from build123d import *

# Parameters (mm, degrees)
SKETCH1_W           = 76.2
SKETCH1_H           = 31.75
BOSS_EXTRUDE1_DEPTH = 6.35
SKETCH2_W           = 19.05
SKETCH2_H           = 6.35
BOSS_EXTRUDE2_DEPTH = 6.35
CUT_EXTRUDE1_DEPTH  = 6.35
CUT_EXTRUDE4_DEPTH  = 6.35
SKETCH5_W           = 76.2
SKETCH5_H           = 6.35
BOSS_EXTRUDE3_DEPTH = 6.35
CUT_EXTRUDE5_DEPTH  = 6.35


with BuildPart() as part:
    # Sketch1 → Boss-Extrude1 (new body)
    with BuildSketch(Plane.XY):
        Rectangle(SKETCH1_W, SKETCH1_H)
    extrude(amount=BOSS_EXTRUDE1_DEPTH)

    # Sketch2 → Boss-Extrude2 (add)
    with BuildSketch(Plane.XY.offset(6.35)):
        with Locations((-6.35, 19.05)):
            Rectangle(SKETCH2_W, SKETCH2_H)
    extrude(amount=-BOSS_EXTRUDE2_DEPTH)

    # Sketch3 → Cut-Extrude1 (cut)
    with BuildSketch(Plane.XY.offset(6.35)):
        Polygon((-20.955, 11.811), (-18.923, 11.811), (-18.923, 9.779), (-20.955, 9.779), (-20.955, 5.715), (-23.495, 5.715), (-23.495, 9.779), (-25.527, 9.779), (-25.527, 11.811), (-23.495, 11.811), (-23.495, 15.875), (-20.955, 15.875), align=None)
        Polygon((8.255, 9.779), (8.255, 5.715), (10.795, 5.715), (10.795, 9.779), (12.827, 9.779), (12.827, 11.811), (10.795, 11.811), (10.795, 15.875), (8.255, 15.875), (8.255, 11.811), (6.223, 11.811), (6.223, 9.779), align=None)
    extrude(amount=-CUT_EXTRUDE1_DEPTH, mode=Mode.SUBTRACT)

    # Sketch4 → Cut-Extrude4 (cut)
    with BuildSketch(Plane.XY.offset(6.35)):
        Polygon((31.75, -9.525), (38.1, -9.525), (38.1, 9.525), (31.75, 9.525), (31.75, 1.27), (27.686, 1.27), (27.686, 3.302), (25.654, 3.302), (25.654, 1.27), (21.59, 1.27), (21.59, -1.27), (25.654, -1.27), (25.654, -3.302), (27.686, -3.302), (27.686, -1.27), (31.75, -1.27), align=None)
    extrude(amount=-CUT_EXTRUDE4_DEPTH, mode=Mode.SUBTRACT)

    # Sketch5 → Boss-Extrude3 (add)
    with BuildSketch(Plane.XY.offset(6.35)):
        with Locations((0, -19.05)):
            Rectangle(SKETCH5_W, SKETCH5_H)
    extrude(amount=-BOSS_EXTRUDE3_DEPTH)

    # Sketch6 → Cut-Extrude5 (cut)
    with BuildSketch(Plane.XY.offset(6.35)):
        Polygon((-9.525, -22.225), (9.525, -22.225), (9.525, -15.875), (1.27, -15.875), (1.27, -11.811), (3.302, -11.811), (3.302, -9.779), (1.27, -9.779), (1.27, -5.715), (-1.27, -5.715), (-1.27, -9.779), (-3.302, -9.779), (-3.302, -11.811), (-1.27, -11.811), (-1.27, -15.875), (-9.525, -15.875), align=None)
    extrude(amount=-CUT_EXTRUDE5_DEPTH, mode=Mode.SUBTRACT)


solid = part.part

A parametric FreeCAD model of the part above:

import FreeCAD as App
import Part
import Sketcher

V = App.Vector
Q = App.Units.Quantity

doc = App.newDocument("Part")
body = doc.addObject("PartDesign::Body", "Body")

# Sketch on XY plane
sketch1 = body.newObject("Sketcher::SketchObject", "Sketch")
sketch1.AttachmentSupport = (doc.getObject("XY_Plane"), [""])
sketch1.MapMode = "FlatFace"
sketch1.addGeometry([
    Part.LineSegment(V(-38, 16, 0), V(-38, -16, 0)),
    Part.LineSegment(V(-38, -16, 0), V(38, -16, 0)),
    Part.LineSegment(V(38, -16, 0), V(38, 16, 0)),
    Part.LineSegment(V(38, 16, 0), V(-38, 16, 0)),
], False)
sketch1.addConstraint([
    Sketcher.Constraint("Coincident", 0, 2, 1, 1),
    Sketcher.Constraint("Coincident", 1, 2, 2, 1),
    Sketcher.Constraint("Coincident", 2, 2, 3, 1),
    Sketcher.Constraint("Coincident", 3, 2, 0, 1),
    Sketcher.Constraint("Vertical", 0),
    Sketcher.Constraint("Horizontal", 1),
    Sketcher.Constraint("Vertical", 2),
    Sketcher.Constraint("Horizontal", 3),
    Sketcher.Constraint("Symmetric", 0, 2, 2, 2, -1, 1),
    Sketcher.Constraint("DistanceX", 1, 1, 1, 2, Q("3 in")),
    Sketcher.Constraint("DistanceY", 0, 2, 0, 1, Q("1.25 in")),
])
pad1 = body.newObject("PartDesign::Pad", "Pad")
pad1.Profile = sketch1
pad1.Length = Q("0.25 in")

# Sketch on XY plane
sketch2 = body.newObject("Sketcher::SketchObject", "Sketch001")
sketch2.AttachmentSupport = (doc.getObject("XY_Plane"), [""])
sketch2.MapMode = "FlatFace"
sketch2.AttachmentOffset = App.Placement(V(0, 0, 0.25 * 25.4), App.Rotation())
sketch2.addGeometry([
    Part.LineSegment(V(-16, 22, 0), V(-16, 16, 0)),
    Part.LineSegment(V(-16, 16, 0), V(3, 16, 0)),
    Part.LineSegment(V(3, 16, 0), V(3, 22, 0)),
    Part.LineSegment(V(3, 22, 0), V(-16, 22, 0)),
], False)
sketch2.addConstraint([
    Sketcher.Constraint("Coincident", 0, 2, 1, 1),
    Sketcher.Constraint("Coincident", 1, 2, 2, 1),
    Sketcher.Constraint("Coincident", 2, 2, 3, 1),
    Sketcher.Constraint("Coincident", 3, 2, 0, 1),
    Sketcher.Constraint("Vertical", 0),
    Sketcher.Constraint("Horizontal", 1),
    Sketcher.Constraint("Vertical", 2),
    Sketcher.Constraint("Horizontal", 3),
    Sketcher.Constraint("DistanceX", 1, 1, 1, 2, Q("0.75 in")),
    Sketcher.Constraint("DistanceY", 0, 2, 0, 1, Q("0.25 in")),
    Sketcher.Constraint("DistanceX", 0, 2, -1, 1, Q("0.625 in")),
    Sketcher.Constraint("DistanceY", -1, 1, 0, 2, Q("0.625 in")),
])
pad2 = body.newObject("PartDesign::Pad", "Pad001")
pad2.Profile = sketch2
pad2.Length = Q("0.25 in")
pad2.Reversed = True

# Sketch on XY plane
sketch3 = body.newObject("Sketcher::SketchObject", "Sketch002")
sketch3.AttachmentSupport = (doc.getObject("XY_Plane"), [""])
sketch3.MapMode = "FlatFace"
sketch3.AttachmentOffset = App.Placement(V(0, 0, 0.25 * 25.4), App.Rotation())
sketch3.addGeometry([
    Part.LineSegment(V(-18.9, 11.8, 0), V(-21, 11.8, 0)),  # 0
    Part.LineSegment(V(-21, 11.8, 0), V(-21, 15.9, 0)),  # 1
    Part.LineSegment(V(-21, 15.9, 0), V(-23.5, 15.9, 0)),  # 2
    Part.LineSegment(V(-23.5, 15.9, 0), V(-23.5, 11.8, 0)),  # 3
    Part.LineSegment(V(-23.5, 11.8, 0), V(-25.5, 11.8, 0)),  # 4
    Part.LineSegment(V(-25.5, 11.8, 0), V(-25.5, 9.8, 0)),  # 5
    Part.LineSegment(V(-25.5, 9.8, 0), V(-23.5, 9.8, 0)),  # 6
    Part.LineSegment(V(-23.5, 9.8, 0), V(-23.5, 5.7, 0)),  # 7
    Part.LineSegment(V(-23.5, 5.7, 0), V(-21, 5.7, 0)),  # 8
    Part.LineSegment(V(-21, 5.7, 0), V(-21, 9.8, 0)),  # 9
    Part.LineSegment(V(-21, 9.8, 0), V(-18.9, 9.8, 0)),  # 10
    Part.LineSegment(V(-18.9, 9.8, 0), V(-18.9, 11.8, 0)),  # 11
    Part.LineSegment(V(8.3, 9.8, 0), V(8.3, 5.7, 0)),  # 12
    Part.LineSegment(V(8.3, 5.7, 0), V(10.8, 5.7, 0)),  # 13
    Part.LineSegment(V(10.8, 5.7, 0), V(10.8, 9.8, 0)),  # 14
    Part.LineSegment(V(10.8, 9.8, 0), V(12.8, 9.8, 0)),  # 15
    Part.LineSegment(V(12.8, 9.8, 0), V(12.8, 11.8, 0)),  # 16
    Part.LineSegment(V(12.8, 11.8, 0), V(10.8, 11.8, 0)),  # 17
    Part.LineSegment(V(10.8, 11.8, 0), V(10.8, 15.9, 0)),  # 18
    Part.LineSegment(V(10.8, 15.9, 0), V(8.3, 15.9, 0)),  # 19
    Part.LineSegment(V(8.3, 15.9, 0), V(8.3, 11.8, 0)),  # 20
    Part.LineSegment(V(8.3, 11.8, 0), V(6.2, 11.8, 0)),  # 21
    Part.LineSegment(V(6.2, 11.8, 0), V(6.2, 9.8, 0)),  # 22
    Part.LineSegment(V(6.2, 9.8, 0), V(8.3, 9.8, 0)),  # 23
], False)
sketch3.addConstraint([
    Sketcher.Constraint("Coincident", 0, 2, 1, 1),
    Sketcher.Constraint("Coincident", 1, 2, 2, 1),
    Sketcher.Constraint("Coincident", 2, 2, 3, 1),
    Sketcher.Constraint("Coincident", 3, 2, 4, 1),
    Sketcher.Constraint("Coincident", 4, 2, 5, 1),
    Sketcher.Constraint("Coincident", 5, 2, 6, 1),
    Sketcher.Constraint("Coincident", 6, 2, 7, 1),
    Sketcher.Constraint("Coincident", 7, 2, 8, 1),
    Sketcher.Constraint("Coincident", 8, 2, 9, 1),
    Sketcher.Constraint("Coincident", 9, 2, 10, 1),
    Sketcher.Constraint("Coincident", 10, 2, 11, 1),
    Sketcher.Constraint("Coincident", 11, 2, 0, 1),
    Sketcher.Constraint("Coincident", 12, 2, 13, 1),
    Sketcher.Constraint("Coincident", 13, 2, 14, 1),
    Sketcher.Constraint("Coincident", 14, 2, 15, 1),
    Sketcher.Constraint("Coincident", 15, 2, 16, 1),
    Sketcher.Constraint("Coincident", 16, 2, 17, 1),
    Sketcher.Constraint("Coincident", 17, 2, 18, 1),
    Sketcher.Constraint("Coincident", 18, 2, 19, 1),
    Sketcher.Constraint("Coincident", 19, 2, 20, 1),
    Sketcher.Constraint("Coincident", 20, 2, 21, 1),
    Sketcher.Constraint("Coincident", 21, 2, 22, 1),
    Sketcher.Constraint("Coincident", 22, 2, 23, 1),
    Sketcher.Constraint("Coincident", 23, 2, 12, 1),
    Sketcher.Constraint("Horizontal", 0),
    Sketcher.Constraint("Vertical", 1),
    Sketcher.Constraint("Horizontal", 2),
    Sketcher.Constraint("Vertical", 3),
    Sketcher.Constraint("Horizontal", 4),
    Sketcher.Constraint("Vertical", 5),
    Sketcher.Constraint("Horizontal", 6),
    Sketcher.Constraint("Vertical", 7),
    Sketcher.Constraint("Horizontal", 8),
    Sketcher.Constraint("Vertical", 9),
    Sketcher.Constraint("Horizontal", 10),
    Sketcher.Constraint("Vertical", 11),
    Sketcher.Constraint("Vertical", 12),
    Sketcher.Constraint("Horizontal", 13),
    Sketcher.Constraint("Vertical", 14),
    Sketcher.Constraint("Horizontal", 15),
    Sketcher.Constraint("Vertical", 16),
    Sketcher.Constraint("Horizontal", 17),
    Sketcher.Constraint("Vertical", 18),
    Sketcher.Constraint("Horizontal", 19),
    Sketcher.Constraint("Vertical", 20),
    Sketcher.Constraint("Horizontal", 21),
    Sketcher.Constraint("Vertical", 22),
    Sketcher.Constraint("Horizontal", 23),
    Sketcher.Constraint("Horizontal", 0, 2, 3, 2),
    Sketcher.Constraint("Horizontal", 6, 2, 9, 2),
    Sketcher.Constraint("Horizontal", 8, 2, 12, 2),
    Sketcher.Constraint("Horizontal", 10, 2, 14, 2),
    Sketcher.Constraint("Horizontal", 11, 2, 16, 2),
    Sketcher.Constraint("Horizontal", 2, 2, 18, 2),
    Sketcher.Constraint("Horizontal", 17, 2, 20, 2),
    Sketcher.Constraint("Horizontal", 15, 2, 22, 2),
    Sketcher.Constraint("Vertical", 3, 2, 6, 2),
    Sketcher.Constraint("Vertical", 1, 2, 8, 2),
    Sketcher.Constraint("Vertical", 14, 2, 17, 2),
    Sketcher.Constraint("Vertical", 12, 2, 19, 2),
    Sketcher.Constraint("Equal", 0, 4),
    Sketcher.Constraint("Equal", 8, 13),
    Sketcher.Constraint("Equal", 10, 15),
    Sketcher.Constraint("Equal", 17, 21),
    Sketcher.Constraint("Equal", 23, 5),
    Sketcher.Constraint("Equal", 3, 7),
    Sketcher.Constraint("DistanceX", 2, 2, 2, 1, Q("0.1 in")),
    Sketcher.Constraint("DistanceX", 0, 2, 0, 1, Q("0.08 in")),
    Sketcher.Constraint("DistanceY", 1, 1, 1, 2, Q("0.16 in")),
    Sketcher.Constraint("DistanceX", 10, 2, 12, 2, Q("1.07 in")),
    Sketcher.Constraint("DistanceX", 0, 2, -1, 1, Q("0.825 in")),
    Sketcher.Constraint("DistanceY", -1, 1, 0, 2, Q("0.465 in")),
])
pocket1 = body.newObject("PartDesign::Pocket", "Pocket")
pocket1.Profile = sketch3
pocket1.Length = Q("0.25 in")

# Sketch on XY plane
sketch4 = body.newObject("Sketcher::SketchObject", "Sketch003")
sketch4.AttachmentSupport = (doc.getObject("XY_Plane"), [""])
sketch4.MapMode = "FlatFace"
sketch4.AttachmentOffset = App.Placement(V(0, 0, 0.25 * 25.4), App.Rotation())
sketch4.addGeometry([
    Part.LineSegment(V(31.8, -9.5, 0), V(38.1, -9.5, 0)),  # 0
    Part.LineSegment(V(38.1, -9.5, 0), V(38.1, 9.5, 0)),  # 1
    Part.LineSegment(V(38.1, 9.5, 0), V(31.8, 9.5, 0)),  # 2
    Part.LineSegment(V(31.8, 9.5, 0), V(31.8, 1.3, 0)),  # 3
    Part.LineSegment(V(31.8, 1.3, 0), V(27.7, 1.3, 0)),  # 4
    Part.LineSegment(V(27.7, 1.3, 0), V(27.7, 3.3, 0)),  # 5
    Part.LineSegment(V(27.7, 3.3, 0), V(25.7, 3.3, 0)),  # 6
    Part.LineSegment(V(25.7, 3.3, 0), V(25.7, 1.3, 0)),  # 7
    Part.LineSegment(V(25.7, 1.3, 0), V(21.6, 1.3, 0)),  # 8
    Part.LineSegment(V(21.6, 1.3, 0), V(21.6, -1.3, 0)),  # 9
    Part.LineSegment(V(21.6, -1.3, 0), V(25.7, -1.3, 0)),  # 10
    Part.LineSegment(V(25.7, -1.3, 0), V(25.7, -3.3, 0)),  # 11
    Part.LineSegment(V(25.7, -3.3, 0), V(27.7, -3.3, 0)),  # 12
    Part.LineSegment(V(27.7, -3.3, 0), V(27.7, -1.3, 0)),  # 13
    Part.LineSegment(V(27.7, -1.3, 0), V(31.8, -1.3, 0)),  # 14
    Part.LineSegment(V(31.8, -1.3, 0), V(31.8, -9.5, 0)),  # 15
], False)
sketch4.addConstraint([
    Sketcher.Constraint("Coincident", 0, 2, 1, 1),
    Sketcher.Constraint("Coincident", 1, 2, 2, 1),
    Sketcher.Constraint("Coincident", 2, 2, 3, 1),
    Sketcher.Constraint("Coincident", 3, 2, 4, 1),
    Sketcher.Constraint("Coincident", 4, 2, 5, 1),
    Sketcher.Constraint("Coincident", 5, 2, 6, 1),
    Sketcher.Constraint("Coincident", 6, 2, 7, 1),
    Sketcher.Constraint("Coincident", 7, 2, 8, 1),
    Sketcher.Constraint("Coincident", 8, 2, 9, 1),
    Sketcher.Constraint("Coincident", 9, 2, 10, 1),
    Sketcher.Constraint("Coincident", 10, 2, 11, 1),
    Sketcher.Constraint("Coincident", 11, 2, 12, 1),
    Sketcher.Constraint("Coincident", 12, 2, 13, 1),
    Sketcher.Constraint("Coincident", 13, 2, 14, 1),
    Sketcher.Constraint("Coincident", 14, 2, 15, 1),
    Sketcher.Constraint("Coincident", 15, 2, 0, 1),
    Sketcher.Constraint("Horizontal", 0),
    Sketcher.Constraint("Vertical", 1),
    Sketcher.Constraint("Horizontal", 2),
    Sketcher.Constraint("Vertical", 3),
    Sketcher.Constraint("Horizontal", 4),
    Sketcher.Constraint("Vertical", 5),
    Sketcher.Constraint("Horizontal", 6),
    Sketcher.Constraint("Vertical", 7),
    Sketcher.Constraint("Horizontal", 8),
    Sketcher.Constraint("Vertical", 9),
    Sketcher.Constraint("Horizontal", 10),
    Sketcher.Constraint("Vertical", 11),
    Sketcher.Constraint("Horizontal", 12),
    Sketcher.Constraint("Vertical", 13),
    Sketcher.Constraint("Horizontal", 14),
    Sketcher.Constraint("Vertical", 15),
    Sketcher.Constraint("Symmetric", 7, 2, 10, 2, -1),
    Sketcher.Constraint("Symmetric", 5, 2, 12, 2, -1),
    Sketcher.Constraint("Symmetric", 3, 2, 14, 2, -1),
    Sketcher.Constraint("Horizontal", 4, 2, 7, 2),
    Sketcher.Constraint("Equal", 4, 8),
    Sketcher.Constraint("Equal", 12, 5),
    Sketcher.Constraint("Equal", 3, 15),
    Sketcher.Constraint("DistanceY", 9, 2, 9, 1, Q("0.1 in")),
    Sketcher.Constraint("DistanceX", 0, 1, 0, 2, Q("0.25 in")),
    Sketcher.Constraint("DistanceX", 4, 2, 4, 1, Q("0.16 in")),
    Sketcher.Constraint("DistanceX", 6, 2, 6, 1, Q("0.08 in")),
    Sketcher.Constraint("DistanceY", 1, 1, 1, 2, Q("0.75 in")),
    Sketcher.Constraint("DistanceX", -1, 1, 0, 2, Q("1.5 in")),
])
pocket2 = body.newObject("PartDesign::Pocket", "Pocket001")
pocket2.Profile = sketch4
pocket2.Length = Q("0.25 in")

# Sketch on XY plane
sketch5 = body.newObject("Sketcher::SketchObject", "Sketch004")
sketch5.AttachmentSupport = (doc.getObject("XY_Plane"), [""])
sketch5.MapMode = "FlatFace"
sketch5.AttachmentOffset = App.Placement(V(0, 0, 0.25 * 25.4), App.Rotation())
sketch5.addGeometry([
    Part.LineSegment(V(-38, -16, 0), V(-38, -22, 0)),
    Part.LineSegment(V(-38, -22, 0), V(38, -22, 0)),
    Part.LineSegment(V(38, -22, 0), V(38, -16, 0)),
    Part.LineSegment(V(38, -16, 0), V(-38, -16, 0)),
], False)
sketch5.addConstraint([
    Sketcher.Constraint("Coincident", 0, 2, 1, 1),
    Sketcher.Constraint("Coincident", 1, 2, 2, 1),
    Sketcher.Constraint("Coincident", 2, 2, 3, 1),
    Sketcher.Constraint("Coincident", 3, 2, 0, 1),
    Sketcher.Constraint("Vertical", 0),
    Sketcher.Constraint("Horizontal", 1),
    Sketcher.Constraint("Vertical", 2),
    Sketcher.Constraint("Horizontal", 3),
    Sketcher.Constraint("DistanceX", 1, 1, 1, 2, Q("3 in")),
    Sketcher.Constraint("DistanceY", 0, 2, 0, 1, Q("0.25 in")),
    Sketcher.Constraint("DistanceX", 0, 2, -1, 1, Q("1.5 in")),
    Sketcher.Constraint("DistanceY", 0, 2, -1, 1, Q("0.875 in")),
])
pad3 = body.newObject("PartDesign::Pad", "Pad002")
pad3.Profile = sketch5
pad3.Length = Q("0.25 in")
pad3.Reversed = True

# Sketch on XY plane
sketch6 = body.newObject("Sketcher::SketchObject", "Sketch005")
sketch6.AttachmentSupport = (doc.getObject("XY_Plane"), [""])
sketch6.MapMode = "FlatFace"
sketch6.AttachmentOffset = App.Placement(V(0, 0, 0.25 * 25.4), App.Rotation())
sketch6.addGeometry([
    Part.LineSegment(V(-9.5, -22.2, 0), V(9.5, -22.2, 0)),  # 0
    Part.LineSegment(V(9.5, -22.2, 0), V(9.5, -15.9, 0)),  # 1
    Part.LineSegment(V(9.5, -15.9, 0), V(1.3, -15.9, 0)),  # 2
    Part.LineSegment(V(1.3, -15.9, 0), V(1.3, -11.8, 0)),  # 3
    Part.LineSegment(V(1.3, -11.8, 0), V(3.3, -11.8, 0)),  # 4
    Part.LineSegment(V(3.3, -11.8, 0), V(3.3, -9.8, 0)),  # 5
    Part.LineSegment(V(3.3, -9.8, 0), V(1.3, -9.8, 0)),  # 6
    Part.LineSegment(V(1.3, -9.8, 0), V(1.3, -5.7, 0)),  # 7
    Part.LineSegment(V(1.3, -5.7, 0), V(-1.3, -5.7, 0)),  # 8
    Part.LineSegment(V(-1.3, -5.7, 0), V(-1.3, -9.8, 0)),  # 9
    Part.LineSegment(V(-1.3, -9.8, 0), V(-3.3, -9.8, 0)),  # 10
    Part.LineSegment(V(-3.3, -9.8, 0), V(-3.3, -11.8, 0)),  # 11
    Part.LineSegment(V(-3.3, -11.8, 0), V(-1.3, -11.8, 0)),  # 12
    Part.LineSegment(V(-1.3, -11.8, 0), V(-1.3, -15.9, 0)),  # 13
    Part.LineSegment(V(-1.3, -15.9, 0), V(-9.5, -15.9, 0)),  # 14
    Part.LineSegment(V(-9.5, -15.9, 0), V(-9.5, -22.2, 0)),  # 15
], False)
sketch6.addConstraint([
    Sketcher.Constraint("Coincident", 0, 2, 1, 1),
    Sketcher.Constraint("Coincident", 1, 2, 2, 1),
    Sketcher.Constraint("Coincident", 2, 2, 3, 1),
    Sketcher.Constraint("Coincident", 3, 2, 4, 1),
    Sketcher.Constraint("Coincident", 4, 2, 5, 1),
    Sketcher.Constraint("Coincident", 5, 2, 6, 1),
    Sketcher.Constraint("Coincident", 6, 2, 7, 1),
    Sketcher.Constraint("Coincident", 7, 2, 8, 1),
    Sketcher.Constraint("Coincident", 8, 2, 9, 1),
    Sketcher.Constraint("Coincident", 9, 2, 10, 1),
    Sketcher.Constraint("Coincident", 10, 2, 11, 1),
    Sketcher.Constraint("Coincident", 11, 2, 12, 1),
    Sketcher.Constraint("Coincident", 12, 2, 13, 1),
    Sketcher.Constraint("Coincident", 13, 2, 14, 1),
    Sketcher.Constraint("Coincident", 14, 2, 15, 1),
    Sketcher.Constraint("Coincident", 15, 2, 0, 1),
    Sketcher.Constraint("Horizontal", 0),
    Sketcher.Constraint("Vertical", 1),
    Sketcher.Constraint("Horizontal", 2),
    Sketcher.Constraint("Vertical", 3),
    Sketcher.Constraint("Horizontal", 4),
    Sketcher.Constraint("Vertical", 5),
    Sketcher.Constraint("Horizontal", 6),
    Sketcher.Constraint("Vertical", 7),
    Sketcher.Constraint("Horizontal", 8),
    Sketcher.Constraint("Vertical", 9),
    Sketcher.Constraint("Horizontal", 10),
    Sketcher.Constraint("Vertical", 11),
    Sketcher.Constraint("Horizontal", 12),
    Sketcher.Constraint("Vertical", 13),
    Sketcher.Constraint("Horizontal", 14),
    Sketcher.Constraint("Vertical", 15),
    Sketcher.Constraint("Symmetric", 6, 2, 9, 2, -2),
    Sketcher.Constraint("Symmetric", 4, 2, 11, 2, -2),
    Sketcher.Constraint("Symmetric", 2, 2, 13, 2, -2),
    Sketcher.Constraint("Vertical", 3, 2, 6, 2),
    Sketcher.Constraint("Equal", 2, 14),
    Sketcher.Constraint("Equal", 12, 5),
    Sketcher.Constraint("Equal", 3, 7),
    Sketcher.Constraint("DistanceX", 8, 2, 8, 1, Q("0.1 in")),
    Sketcher.Constraint("DistanceX", 0, 1, 0, 2, Q("0.75 in")),
    Sketcher.Constraint("DistanceX", 4, 1, 4, 2, Q("0.08 in")),
    Sketcher.Constraint("DistanceY", 1, 1, 1, 2, Q("0.25 in")),
    Sketcher.Constraint("DistanceY", 3, 1, 3, 2, Q("0.16 in")),
    Sketcher.Constraint("DistanceY", 0, 2, -1, 1, Q("0.875 in")),
])
pocket3 = body.newObject("PartDesign::Pocket", "Pocket002")
pocket3.Profile = sketch6
pocket3.Length = Q("0.25 in")

doc.recompute()
